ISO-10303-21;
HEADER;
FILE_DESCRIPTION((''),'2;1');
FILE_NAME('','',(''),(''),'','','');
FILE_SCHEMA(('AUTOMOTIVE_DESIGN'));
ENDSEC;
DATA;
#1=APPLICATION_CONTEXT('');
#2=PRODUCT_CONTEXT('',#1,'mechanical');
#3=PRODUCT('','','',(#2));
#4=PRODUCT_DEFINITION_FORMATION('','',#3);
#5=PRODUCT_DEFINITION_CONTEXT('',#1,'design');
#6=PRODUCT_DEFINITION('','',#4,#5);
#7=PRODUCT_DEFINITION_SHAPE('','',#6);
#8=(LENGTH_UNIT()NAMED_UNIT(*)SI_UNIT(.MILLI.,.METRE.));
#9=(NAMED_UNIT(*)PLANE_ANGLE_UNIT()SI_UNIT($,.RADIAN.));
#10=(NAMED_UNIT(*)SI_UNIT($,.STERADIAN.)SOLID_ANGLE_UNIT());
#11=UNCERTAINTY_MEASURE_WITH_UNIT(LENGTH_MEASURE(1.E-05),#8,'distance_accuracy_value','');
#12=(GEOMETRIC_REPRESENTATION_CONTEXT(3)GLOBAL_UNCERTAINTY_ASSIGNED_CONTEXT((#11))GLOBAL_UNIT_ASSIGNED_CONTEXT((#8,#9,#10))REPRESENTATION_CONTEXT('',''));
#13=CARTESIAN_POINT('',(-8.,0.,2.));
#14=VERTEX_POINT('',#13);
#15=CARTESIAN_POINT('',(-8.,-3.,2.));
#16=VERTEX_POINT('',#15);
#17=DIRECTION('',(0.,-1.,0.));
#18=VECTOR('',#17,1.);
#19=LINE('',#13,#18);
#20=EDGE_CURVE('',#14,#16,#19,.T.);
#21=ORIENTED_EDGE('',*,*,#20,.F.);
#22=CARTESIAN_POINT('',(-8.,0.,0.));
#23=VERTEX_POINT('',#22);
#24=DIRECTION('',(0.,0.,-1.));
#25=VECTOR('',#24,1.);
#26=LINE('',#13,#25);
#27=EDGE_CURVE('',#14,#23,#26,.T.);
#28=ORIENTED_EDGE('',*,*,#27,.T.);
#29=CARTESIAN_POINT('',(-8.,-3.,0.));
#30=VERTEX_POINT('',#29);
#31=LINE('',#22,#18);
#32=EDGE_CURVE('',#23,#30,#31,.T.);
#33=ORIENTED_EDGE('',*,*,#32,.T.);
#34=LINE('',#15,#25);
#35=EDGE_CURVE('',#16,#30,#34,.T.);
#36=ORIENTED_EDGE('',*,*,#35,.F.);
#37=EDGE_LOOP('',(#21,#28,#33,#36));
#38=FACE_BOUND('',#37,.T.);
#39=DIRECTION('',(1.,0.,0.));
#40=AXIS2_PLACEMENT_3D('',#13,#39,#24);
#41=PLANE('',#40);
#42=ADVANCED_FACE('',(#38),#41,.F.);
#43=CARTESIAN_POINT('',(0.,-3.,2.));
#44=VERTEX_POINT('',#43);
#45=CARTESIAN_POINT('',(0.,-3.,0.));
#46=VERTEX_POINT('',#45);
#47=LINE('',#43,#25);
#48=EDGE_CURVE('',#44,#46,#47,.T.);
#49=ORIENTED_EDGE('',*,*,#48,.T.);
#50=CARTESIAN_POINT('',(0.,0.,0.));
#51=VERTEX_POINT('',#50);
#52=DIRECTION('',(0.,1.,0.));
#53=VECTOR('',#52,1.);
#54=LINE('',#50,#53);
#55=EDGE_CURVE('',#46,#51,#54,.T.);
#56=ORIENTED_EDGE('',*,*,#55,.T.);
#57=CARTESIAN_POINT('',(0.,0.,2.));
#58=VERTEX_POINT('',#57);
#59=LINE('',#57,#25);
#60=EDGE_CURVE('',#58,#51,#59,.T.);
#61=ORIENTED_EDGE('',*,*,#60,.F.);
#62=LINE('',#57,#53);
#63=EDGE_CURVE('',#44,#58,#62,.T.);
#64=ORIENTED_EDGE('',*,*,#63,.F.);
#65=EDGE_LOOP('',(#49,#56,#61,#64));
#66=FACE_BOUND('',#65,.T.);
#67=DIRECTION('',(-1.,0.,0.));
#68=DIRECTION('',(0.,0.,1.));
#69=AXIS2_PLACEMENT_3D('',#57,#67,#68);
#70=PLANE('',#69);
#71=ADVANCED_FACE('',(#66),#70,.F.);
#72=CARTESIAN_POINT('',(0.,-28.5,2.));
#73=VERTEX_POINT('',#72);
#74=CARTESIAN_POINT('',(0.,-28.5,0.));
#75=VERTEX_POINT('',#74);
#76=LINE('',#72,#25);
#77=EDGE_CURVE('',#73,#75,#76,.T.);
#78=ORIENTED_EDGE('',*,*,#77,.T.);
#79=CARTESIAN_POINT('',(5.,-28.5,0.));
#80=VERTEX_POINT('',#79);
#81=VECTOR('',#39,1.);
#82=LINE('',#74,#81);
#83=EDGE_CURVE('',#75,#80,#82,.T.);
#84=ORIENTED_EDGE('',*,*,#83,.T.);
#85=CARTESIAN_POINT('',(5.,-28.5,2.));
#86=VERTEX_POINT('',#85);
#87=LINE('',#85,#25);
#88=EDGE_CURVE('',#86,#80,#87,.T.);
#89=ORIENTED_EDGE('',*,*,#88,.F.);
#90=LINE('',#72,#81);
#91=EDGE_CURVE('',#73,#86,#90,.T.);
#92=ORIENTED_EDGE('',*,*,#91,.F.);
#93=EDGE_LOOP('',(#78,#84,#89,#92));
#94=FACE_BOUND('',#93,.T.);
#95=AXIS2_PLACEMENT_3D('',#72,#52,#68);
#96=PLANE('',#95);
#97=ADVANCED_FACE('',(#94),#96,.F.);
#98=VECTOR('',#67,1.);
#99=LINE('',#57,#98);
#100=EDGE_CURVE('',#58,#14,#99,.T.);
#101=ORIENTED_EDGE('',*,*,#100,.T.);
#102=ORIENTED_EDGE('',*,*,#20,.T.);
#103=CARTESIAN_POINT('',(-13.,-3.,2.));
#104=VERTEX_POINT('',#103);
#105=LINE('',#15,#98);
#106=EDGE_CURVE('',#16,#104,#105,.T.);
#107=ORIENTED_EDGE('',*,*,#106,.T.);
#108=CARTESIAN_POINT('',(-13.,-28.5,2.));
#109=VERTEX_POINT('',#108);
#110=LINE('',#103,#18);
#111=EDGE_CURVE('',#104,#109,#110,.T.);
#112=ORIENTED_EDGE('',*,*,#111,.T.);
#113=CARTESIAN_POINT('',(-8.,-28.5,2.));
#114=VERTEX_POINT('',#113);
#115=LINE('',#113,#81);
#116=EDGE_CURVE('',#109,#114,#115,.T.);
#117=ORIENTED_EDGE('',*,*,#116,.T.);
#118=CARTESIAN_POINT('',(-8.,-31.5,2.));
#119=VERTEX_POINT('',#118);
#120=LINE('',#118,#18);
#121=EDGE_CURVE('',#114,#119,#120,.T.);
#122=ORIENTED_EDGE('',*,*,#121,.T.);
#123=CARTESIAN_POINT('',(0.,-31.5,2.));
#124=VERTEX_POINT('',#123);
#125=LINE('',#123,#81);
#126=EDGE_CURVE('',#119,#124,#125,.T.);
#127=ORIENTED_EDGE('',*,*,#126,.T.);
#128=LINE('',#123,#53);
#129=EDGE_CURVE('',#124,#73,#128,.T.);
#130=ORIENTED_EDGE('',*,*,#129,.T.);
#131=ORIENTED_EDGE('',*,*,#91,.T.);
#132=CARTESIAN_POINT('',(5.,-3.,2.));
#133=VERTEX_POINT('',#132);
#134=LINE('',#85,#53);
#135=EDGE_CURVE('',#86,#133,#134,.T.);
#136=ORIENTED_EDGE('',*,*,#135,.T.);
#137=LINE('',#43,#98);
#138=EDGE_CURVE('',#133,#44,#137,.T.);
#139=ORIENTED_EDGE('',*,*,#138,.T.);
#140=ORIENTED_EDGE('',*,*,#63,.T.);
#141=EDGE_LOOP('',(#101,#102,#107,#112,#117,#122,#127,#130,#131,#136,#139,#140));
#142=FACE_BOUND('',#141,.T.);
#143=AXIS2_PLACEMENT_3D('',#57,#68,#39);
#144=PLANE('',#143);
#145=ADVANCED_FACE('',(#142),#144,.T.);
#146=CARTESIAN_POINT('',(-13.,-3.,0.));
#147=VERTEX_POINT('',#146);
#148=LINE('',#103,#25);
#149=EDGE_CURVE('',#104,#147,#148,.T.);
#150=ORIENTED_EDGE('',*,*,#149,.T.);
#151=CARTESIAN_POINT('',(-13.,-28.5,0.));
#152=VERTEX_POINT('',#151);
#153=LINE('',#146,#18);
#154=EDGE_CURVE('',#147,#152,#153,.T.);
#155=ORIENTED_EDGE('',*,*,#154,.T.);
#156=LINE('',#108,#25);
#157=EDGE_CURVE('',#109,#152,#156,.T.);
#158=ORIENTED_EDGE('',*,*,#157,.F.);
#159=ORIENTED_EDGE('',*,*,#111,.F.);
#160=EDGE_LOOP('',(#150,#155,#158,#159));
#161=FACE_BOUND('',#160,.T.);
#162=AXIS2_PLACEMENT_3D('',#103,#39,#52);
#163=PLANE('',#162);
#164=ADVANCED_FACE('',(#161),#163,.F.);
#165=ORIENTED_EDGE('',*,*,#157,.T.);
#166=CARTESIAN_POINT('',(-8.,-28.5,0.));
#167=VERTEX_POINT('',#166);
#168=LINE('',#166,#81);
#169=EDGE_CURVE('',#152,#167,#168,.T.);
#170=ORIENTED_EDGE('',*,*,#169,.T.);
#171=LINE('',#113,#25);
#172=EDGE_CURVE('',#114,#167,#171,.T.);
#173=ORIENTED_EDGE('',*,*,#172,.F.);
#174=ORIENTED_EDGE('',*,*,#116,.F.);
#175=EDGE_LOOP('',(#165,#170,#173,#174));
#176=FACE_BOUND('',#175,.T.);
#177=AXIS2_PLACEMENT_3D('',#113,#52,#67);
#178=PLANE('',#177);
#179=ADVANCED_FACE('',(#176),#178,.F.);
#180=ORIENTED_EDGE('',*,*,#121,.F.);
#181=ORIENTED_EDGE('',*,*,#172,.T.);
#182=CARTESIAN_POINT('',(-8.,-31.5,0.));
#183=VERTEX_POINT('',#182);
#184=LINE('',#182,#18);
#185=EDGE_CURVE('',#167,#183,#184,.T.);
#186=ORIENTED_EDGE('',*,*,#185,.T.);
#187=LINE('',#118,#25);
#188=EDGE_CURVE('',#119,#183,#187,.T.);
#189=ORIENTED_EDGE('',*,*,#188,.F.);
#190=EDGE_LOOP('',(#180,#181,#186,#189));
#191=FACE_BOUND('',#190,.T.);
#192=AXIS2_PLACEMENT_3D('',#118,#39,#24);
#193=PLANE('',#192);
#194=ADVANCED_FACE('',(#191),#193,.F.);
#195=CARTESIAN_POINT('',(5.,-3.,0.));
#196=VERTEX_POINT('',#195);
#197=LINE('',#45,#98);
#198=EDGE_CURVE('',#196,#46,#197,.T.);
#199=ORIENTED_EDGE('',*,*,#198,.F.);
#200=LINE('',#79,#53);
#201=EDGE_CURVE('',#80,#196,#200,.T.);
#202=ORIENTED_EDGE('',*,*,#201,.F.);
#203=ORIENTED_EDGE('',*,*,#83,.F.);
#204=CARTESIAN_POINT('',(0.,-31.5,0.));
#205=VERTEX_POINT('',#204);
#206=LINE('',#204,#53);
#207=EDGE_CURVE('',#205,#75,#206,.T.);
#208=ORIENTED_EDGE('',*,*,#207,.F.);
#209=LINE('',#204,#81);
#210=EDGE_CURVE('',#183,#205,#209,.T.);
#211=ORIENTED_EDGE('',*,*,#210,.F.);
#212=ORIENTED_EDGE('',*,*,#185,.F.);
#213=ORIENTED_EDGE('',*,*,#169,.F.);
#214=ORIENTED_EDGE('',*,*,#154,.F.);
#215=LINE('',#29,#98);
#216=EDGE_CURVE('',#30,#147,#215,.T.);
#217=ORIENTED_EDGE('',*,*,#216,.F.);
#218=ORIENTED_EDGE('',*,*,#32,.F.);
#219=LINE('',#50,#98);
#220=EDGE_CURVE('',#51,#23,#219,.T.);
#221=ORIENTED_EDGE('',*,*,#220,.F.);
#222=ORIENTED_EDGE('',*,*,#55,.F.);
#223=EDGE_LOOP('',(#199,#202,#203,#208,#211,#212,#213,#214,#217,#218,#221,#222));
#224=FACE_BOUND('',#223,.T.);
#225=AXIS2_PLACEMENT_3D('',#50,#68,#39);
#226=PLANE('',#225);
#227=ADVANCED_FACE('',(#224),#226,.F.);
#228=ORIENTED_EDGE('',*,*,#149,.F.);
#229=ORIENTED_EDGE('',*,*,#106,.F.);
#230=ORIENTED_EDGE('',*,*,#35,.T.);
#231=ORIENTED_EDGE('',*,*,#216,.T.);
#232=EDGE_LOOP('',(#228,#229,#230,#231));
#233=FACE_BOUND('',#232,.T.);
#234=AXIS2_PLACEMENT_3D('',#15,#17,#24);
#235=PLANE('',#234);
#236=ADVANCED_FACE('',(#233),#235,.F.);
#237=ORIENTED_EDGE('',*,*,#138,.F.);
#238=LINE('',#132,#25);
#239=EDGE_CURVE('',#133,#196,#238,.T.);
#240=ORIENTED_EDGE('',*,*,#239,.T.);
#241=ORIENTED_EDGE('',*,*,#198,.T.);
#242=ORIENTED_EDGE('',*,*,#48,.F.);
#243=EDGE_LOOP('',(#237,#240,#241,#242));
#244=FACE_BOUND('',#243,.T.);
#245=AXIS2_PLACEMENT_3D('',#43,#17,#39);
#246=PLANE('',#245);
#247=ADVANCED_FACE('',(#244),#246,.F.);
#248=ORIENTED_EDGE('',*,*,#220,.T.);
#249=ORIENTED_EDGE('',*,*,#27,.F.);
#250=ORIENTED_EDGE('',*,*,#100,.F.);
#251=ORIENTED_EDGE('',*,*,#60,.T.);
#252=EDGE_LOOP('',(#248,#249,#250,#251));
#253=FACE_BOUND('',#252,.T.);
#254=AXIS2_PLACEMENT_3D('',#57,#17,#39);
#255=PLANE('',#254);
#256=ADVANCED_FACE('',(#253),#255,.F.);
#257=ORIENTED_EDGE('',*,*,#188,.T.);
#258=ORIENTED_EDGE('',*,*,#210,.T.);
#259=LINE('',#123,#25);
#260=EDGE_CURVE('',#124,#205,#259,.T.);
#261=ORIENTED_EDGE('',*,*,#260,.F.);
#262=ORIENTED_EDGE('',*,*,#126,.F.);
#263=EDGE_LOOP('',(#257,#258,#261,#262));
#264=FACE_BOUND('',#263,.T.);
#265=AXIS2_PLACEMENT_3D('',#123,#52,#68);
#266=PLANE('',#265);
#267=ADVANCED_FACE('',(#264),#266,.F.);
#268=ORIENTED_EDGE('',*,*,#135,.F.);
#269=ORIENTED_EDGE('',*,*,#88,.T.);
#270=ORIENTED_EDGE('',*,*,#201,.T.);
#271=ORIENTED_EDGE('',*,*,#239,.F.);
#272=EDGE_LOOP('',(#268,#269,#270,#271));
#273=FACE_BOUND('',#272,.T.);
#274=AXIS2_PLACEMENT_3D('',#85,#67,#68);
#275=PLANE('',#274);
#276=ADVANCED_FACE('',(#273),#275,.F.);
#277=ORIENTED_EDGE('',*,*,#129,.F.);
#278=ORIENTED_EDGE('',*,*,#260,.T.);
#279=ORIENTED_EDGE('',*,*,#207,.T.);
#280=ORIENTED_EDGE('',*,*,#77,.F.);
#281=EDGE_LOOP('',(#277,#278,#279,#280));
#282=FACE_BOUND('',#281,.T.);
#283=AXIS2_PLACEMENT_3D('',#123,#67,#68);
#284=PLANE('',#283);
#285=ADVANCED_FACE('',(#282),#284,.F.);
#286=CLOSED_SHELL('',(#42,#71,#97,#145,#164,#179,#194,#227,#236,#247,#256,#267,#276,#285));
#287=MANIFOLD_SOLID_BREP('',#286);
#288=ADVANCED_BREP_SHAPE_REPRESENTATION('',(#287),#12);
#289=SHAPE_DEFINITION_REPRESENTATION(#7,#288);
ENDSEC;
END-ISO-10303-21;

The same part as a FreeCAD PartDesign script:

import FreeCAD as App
import Part
import Sketcher

V = App.Vector

doc = App.newDocument("Part")
body = doc.addObject("PartDesign::Body", "Body")

# Sketch on XY plane
sketch1 = body.newObject("Sketcher::SketchObject", "Sketch")
sketch1.AttachmentSupport = (doc.getObject("XY_Plane"), [""])
sketch1.MapMode = "FlatFace"
sketch1.addGeometry([
    Part.LineSegment(V(0, 0, 0), V(-8, 0, 0)),  # 0
    Part.LineSegment(V(-8, 0, 0), V(-8, -3, 0)),  # 1
    Part.LineSegment(V(-8, -3, 0), V(-13, -3, 0)),  # 2
    Part.LineSegment(V(-13, -3, 0), V(-13, -28.5, 0)),  # 3
    Part.LineSegment(V(-13, -28.5, 0), V(-8, -28.5, 0)),  # 4
    Part.LineSegment(V(-8, -28.5, 0), V(-8, -31.5, 0)),  # 5
    Part.LineSegment(V(-8, -31.5, 0), V(0, -31.5, 0)),  # 6
    Part.LineSegment(V(0, -31.5, 0), V(0, -28.5, 0)),  # 7
    Part.LineSegment(V(0, -28.5, 0), V(5, -28.5, 0)),  # 8
    Part.LineSegment(V(5, -28.5, 0), V(5, -3, 0)),  # 9
    Part.LineSegment(V(5, -3, 0), V(0, -3, 0)),  # 10
    Part.LineSegment(V(0, -3, 0), V(0, 0, 0)),  # 11
], False)
sketch1.addConstraint([
    Sketcher.Constraint("Coincident", 0, 2, 1, 1),
    Sketcher.Constraint("Coincident", 1, 2, 2, 1),
    Sketcher.Constraint("Coincident", 2, 2, 3, 1),
    Sketcher.Constraint("Coincident", 3, 2, 4, 1),
    Sketcher.Constraint("Coincident", 4, 2, 5, 1),
    Sketcher.Constraint("Coincident", 5, 2, 6, 1),
    Sketcher.Constraint("Coincident", 6, 2, 7, 1),
    Sketcher.Constraint("Coincident", 7, 2, 8, 1),
    Sketcher.Constraint("Coincident", 8, 2, 9, 1),
    Sketcher.Constraint("Coincident", 9, 2, 10, 1),
    Sketcher.Constraint("Coincident", 10, 2, 11, 1),
    Sketcher.Constraint("Coincident", 11, 2, 0, 1),
    Sketcher.Constraint("Horizontal", 0),
    Sketcher.Constraint("Vertical", 1),
    Sketcher.Constraint("Horizontal", 2),
    Sketcher.Constraint("Vertical", 3),
    Sketcher.Constraint("Horizontal", 4),
    Sketcher.Constraint("Vertical", 5),
    Sketcher.Constraint("Horizontal", 6),
    Sketcher.Constraint("Vertical", 7),
    Sketcher.Constraint("Horizontal", 8),
    Sketcher.Constraint("Vertical", 9),
    Sketcher.Constraint("Horizontal", 10),
    Sketcher.Constraint("Vertical", 11),
    Sketcher.Constraint("Coincident", 11, 2, -1, 1),
    Sketcher.Constraint("PointOnObject", 6, 2, -2),
    Sketcher.Constraint("Horizontal", 4, 2, 7, 2),
    Sketcher.Constraint("Horizontal", 2, 2, 9, 2),
    Sketcher.Constraint("Vertical", 1, 2, 4, 2),
    Sketcher.Constraint("Equal", 4, 8),
    Sketcher.Constraint("Equal", 1, 5),
    Sketcher.Constraint("DistanceX", 0, 2, 0, 1, 8.0),
    Sketcher.Constraint("DistanceX", 2, 2, 2, 1, 5.0),
    Sketcher.Constraint("DistanceY", 1, 2, 1, 1, 3.0),
    Sketcher.Constraint("DistanceY", 3, 2, 3, 1, 25.5),
])
pad1 = body.newObject("PartDesign::Pad", "Pad")
pad1.Profile = sketch1
pad1.Length = 2

doc.recompute()
